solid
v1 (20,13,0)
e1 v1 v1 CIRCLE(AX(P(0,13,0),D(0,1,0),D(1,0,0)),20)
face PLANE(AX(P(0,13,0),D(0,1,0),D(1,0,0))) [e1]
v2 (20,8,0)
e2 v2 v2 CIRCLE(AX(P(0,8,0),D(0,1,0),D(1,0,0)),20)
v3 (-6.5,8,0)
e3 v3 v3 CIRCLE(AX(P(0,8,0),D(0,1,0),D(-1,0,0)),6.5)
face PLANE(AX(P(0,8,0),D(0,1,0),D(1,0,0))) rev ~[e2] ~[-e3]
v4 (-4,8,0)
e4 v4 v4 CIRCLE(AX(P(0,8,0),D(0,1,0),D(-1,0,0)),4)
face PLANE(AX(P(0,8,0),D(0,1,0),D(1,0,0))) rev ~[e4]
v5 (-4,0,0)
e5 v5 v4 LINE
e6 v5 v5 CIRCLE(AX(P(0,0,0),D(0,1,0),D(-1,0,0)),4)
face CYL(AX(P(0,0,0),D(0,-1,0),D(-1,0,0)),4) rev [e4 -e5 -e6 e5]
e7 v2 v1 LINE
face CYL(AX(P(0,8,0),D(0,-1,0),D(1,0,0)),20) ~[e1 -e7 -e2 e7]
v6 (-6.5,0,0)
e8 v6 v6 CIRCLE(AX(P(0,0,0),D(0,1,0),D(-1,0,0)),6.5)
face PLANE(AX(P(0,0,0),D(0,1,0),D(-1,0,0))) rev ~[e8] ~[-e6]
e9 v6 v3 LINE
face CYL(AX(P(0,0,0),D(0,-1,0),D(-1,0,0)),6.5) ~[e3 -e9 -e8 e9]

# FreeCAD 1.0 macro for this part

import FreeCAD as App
import Part
import Sketcher
from FreeCAD import Vector

doc = App.newDocument("Part")
body = doc.addObject("PartDesign::Body", "Body")

# Sketch on XZ plane
sketch1 = body.newObject("Sketcher::SketchObject", "Sketch")
sketch1.AttachmentSupport = (doc.getObject("XZ_Plane"), [""])
sketch1.MapMode = "FlatFace"
sketch1.addGeometry(Part.Circle(Vector(0, 0, 0), Vector(0, 0, 1), 6.5), False)
sketch1.addGeometry(Part.Circle(Vector(0, 0, 0), Vector(0, 0, 1), 4), False)
sketch1.addConstraint(Sketcher.Constraint("Coincident", 0, 3, -1, 1))
sketch1.addConstraint(Sketcher.Constraint("Coincident", 1, 3, -1, 1))
sketch1.addConstraint(Sketcher.Constraint("Diameter", 0, 13.0))
sketch1.addConstraint(Sketcher.Constraint("Diameter", 1, 8.0))
pad1 = body.newObject("PartDesign::Pad", "Pad")
pad1.Profile = sketch1
pad1.Length = 8
pad1.Reversed = True

# Sketch on XZ plane
sketch2 = body.newObject("Sketcher::SketchObject", "Sketch001")
sketch2.AttachmentSupport = (doc.getObject("XZ_Plane"), [""])
sketch2.MapMode = "FlatFace"
sketch2.AttachmentOffset = App.Placement(Vector(0, 0, -8), App.Rotation())
sketch2.addGeometry(Part.Circle(Vector(0, 0, 0), Vector(0, 0, 1), 20), False)
sketch2.addConstraint(Sketcher.Constraint("Coincident", 0, 3, -1, 1))
sketch2.addConstraint(Sketcher.Constraint("Diameter", 0, 40.0))
pad2 = body.newObject("PartDesign::Pad", "Pad001")
pad2.Profile = sketch2
pad2.Length = 5
pad2.Reversed = True

doc.recompute()
